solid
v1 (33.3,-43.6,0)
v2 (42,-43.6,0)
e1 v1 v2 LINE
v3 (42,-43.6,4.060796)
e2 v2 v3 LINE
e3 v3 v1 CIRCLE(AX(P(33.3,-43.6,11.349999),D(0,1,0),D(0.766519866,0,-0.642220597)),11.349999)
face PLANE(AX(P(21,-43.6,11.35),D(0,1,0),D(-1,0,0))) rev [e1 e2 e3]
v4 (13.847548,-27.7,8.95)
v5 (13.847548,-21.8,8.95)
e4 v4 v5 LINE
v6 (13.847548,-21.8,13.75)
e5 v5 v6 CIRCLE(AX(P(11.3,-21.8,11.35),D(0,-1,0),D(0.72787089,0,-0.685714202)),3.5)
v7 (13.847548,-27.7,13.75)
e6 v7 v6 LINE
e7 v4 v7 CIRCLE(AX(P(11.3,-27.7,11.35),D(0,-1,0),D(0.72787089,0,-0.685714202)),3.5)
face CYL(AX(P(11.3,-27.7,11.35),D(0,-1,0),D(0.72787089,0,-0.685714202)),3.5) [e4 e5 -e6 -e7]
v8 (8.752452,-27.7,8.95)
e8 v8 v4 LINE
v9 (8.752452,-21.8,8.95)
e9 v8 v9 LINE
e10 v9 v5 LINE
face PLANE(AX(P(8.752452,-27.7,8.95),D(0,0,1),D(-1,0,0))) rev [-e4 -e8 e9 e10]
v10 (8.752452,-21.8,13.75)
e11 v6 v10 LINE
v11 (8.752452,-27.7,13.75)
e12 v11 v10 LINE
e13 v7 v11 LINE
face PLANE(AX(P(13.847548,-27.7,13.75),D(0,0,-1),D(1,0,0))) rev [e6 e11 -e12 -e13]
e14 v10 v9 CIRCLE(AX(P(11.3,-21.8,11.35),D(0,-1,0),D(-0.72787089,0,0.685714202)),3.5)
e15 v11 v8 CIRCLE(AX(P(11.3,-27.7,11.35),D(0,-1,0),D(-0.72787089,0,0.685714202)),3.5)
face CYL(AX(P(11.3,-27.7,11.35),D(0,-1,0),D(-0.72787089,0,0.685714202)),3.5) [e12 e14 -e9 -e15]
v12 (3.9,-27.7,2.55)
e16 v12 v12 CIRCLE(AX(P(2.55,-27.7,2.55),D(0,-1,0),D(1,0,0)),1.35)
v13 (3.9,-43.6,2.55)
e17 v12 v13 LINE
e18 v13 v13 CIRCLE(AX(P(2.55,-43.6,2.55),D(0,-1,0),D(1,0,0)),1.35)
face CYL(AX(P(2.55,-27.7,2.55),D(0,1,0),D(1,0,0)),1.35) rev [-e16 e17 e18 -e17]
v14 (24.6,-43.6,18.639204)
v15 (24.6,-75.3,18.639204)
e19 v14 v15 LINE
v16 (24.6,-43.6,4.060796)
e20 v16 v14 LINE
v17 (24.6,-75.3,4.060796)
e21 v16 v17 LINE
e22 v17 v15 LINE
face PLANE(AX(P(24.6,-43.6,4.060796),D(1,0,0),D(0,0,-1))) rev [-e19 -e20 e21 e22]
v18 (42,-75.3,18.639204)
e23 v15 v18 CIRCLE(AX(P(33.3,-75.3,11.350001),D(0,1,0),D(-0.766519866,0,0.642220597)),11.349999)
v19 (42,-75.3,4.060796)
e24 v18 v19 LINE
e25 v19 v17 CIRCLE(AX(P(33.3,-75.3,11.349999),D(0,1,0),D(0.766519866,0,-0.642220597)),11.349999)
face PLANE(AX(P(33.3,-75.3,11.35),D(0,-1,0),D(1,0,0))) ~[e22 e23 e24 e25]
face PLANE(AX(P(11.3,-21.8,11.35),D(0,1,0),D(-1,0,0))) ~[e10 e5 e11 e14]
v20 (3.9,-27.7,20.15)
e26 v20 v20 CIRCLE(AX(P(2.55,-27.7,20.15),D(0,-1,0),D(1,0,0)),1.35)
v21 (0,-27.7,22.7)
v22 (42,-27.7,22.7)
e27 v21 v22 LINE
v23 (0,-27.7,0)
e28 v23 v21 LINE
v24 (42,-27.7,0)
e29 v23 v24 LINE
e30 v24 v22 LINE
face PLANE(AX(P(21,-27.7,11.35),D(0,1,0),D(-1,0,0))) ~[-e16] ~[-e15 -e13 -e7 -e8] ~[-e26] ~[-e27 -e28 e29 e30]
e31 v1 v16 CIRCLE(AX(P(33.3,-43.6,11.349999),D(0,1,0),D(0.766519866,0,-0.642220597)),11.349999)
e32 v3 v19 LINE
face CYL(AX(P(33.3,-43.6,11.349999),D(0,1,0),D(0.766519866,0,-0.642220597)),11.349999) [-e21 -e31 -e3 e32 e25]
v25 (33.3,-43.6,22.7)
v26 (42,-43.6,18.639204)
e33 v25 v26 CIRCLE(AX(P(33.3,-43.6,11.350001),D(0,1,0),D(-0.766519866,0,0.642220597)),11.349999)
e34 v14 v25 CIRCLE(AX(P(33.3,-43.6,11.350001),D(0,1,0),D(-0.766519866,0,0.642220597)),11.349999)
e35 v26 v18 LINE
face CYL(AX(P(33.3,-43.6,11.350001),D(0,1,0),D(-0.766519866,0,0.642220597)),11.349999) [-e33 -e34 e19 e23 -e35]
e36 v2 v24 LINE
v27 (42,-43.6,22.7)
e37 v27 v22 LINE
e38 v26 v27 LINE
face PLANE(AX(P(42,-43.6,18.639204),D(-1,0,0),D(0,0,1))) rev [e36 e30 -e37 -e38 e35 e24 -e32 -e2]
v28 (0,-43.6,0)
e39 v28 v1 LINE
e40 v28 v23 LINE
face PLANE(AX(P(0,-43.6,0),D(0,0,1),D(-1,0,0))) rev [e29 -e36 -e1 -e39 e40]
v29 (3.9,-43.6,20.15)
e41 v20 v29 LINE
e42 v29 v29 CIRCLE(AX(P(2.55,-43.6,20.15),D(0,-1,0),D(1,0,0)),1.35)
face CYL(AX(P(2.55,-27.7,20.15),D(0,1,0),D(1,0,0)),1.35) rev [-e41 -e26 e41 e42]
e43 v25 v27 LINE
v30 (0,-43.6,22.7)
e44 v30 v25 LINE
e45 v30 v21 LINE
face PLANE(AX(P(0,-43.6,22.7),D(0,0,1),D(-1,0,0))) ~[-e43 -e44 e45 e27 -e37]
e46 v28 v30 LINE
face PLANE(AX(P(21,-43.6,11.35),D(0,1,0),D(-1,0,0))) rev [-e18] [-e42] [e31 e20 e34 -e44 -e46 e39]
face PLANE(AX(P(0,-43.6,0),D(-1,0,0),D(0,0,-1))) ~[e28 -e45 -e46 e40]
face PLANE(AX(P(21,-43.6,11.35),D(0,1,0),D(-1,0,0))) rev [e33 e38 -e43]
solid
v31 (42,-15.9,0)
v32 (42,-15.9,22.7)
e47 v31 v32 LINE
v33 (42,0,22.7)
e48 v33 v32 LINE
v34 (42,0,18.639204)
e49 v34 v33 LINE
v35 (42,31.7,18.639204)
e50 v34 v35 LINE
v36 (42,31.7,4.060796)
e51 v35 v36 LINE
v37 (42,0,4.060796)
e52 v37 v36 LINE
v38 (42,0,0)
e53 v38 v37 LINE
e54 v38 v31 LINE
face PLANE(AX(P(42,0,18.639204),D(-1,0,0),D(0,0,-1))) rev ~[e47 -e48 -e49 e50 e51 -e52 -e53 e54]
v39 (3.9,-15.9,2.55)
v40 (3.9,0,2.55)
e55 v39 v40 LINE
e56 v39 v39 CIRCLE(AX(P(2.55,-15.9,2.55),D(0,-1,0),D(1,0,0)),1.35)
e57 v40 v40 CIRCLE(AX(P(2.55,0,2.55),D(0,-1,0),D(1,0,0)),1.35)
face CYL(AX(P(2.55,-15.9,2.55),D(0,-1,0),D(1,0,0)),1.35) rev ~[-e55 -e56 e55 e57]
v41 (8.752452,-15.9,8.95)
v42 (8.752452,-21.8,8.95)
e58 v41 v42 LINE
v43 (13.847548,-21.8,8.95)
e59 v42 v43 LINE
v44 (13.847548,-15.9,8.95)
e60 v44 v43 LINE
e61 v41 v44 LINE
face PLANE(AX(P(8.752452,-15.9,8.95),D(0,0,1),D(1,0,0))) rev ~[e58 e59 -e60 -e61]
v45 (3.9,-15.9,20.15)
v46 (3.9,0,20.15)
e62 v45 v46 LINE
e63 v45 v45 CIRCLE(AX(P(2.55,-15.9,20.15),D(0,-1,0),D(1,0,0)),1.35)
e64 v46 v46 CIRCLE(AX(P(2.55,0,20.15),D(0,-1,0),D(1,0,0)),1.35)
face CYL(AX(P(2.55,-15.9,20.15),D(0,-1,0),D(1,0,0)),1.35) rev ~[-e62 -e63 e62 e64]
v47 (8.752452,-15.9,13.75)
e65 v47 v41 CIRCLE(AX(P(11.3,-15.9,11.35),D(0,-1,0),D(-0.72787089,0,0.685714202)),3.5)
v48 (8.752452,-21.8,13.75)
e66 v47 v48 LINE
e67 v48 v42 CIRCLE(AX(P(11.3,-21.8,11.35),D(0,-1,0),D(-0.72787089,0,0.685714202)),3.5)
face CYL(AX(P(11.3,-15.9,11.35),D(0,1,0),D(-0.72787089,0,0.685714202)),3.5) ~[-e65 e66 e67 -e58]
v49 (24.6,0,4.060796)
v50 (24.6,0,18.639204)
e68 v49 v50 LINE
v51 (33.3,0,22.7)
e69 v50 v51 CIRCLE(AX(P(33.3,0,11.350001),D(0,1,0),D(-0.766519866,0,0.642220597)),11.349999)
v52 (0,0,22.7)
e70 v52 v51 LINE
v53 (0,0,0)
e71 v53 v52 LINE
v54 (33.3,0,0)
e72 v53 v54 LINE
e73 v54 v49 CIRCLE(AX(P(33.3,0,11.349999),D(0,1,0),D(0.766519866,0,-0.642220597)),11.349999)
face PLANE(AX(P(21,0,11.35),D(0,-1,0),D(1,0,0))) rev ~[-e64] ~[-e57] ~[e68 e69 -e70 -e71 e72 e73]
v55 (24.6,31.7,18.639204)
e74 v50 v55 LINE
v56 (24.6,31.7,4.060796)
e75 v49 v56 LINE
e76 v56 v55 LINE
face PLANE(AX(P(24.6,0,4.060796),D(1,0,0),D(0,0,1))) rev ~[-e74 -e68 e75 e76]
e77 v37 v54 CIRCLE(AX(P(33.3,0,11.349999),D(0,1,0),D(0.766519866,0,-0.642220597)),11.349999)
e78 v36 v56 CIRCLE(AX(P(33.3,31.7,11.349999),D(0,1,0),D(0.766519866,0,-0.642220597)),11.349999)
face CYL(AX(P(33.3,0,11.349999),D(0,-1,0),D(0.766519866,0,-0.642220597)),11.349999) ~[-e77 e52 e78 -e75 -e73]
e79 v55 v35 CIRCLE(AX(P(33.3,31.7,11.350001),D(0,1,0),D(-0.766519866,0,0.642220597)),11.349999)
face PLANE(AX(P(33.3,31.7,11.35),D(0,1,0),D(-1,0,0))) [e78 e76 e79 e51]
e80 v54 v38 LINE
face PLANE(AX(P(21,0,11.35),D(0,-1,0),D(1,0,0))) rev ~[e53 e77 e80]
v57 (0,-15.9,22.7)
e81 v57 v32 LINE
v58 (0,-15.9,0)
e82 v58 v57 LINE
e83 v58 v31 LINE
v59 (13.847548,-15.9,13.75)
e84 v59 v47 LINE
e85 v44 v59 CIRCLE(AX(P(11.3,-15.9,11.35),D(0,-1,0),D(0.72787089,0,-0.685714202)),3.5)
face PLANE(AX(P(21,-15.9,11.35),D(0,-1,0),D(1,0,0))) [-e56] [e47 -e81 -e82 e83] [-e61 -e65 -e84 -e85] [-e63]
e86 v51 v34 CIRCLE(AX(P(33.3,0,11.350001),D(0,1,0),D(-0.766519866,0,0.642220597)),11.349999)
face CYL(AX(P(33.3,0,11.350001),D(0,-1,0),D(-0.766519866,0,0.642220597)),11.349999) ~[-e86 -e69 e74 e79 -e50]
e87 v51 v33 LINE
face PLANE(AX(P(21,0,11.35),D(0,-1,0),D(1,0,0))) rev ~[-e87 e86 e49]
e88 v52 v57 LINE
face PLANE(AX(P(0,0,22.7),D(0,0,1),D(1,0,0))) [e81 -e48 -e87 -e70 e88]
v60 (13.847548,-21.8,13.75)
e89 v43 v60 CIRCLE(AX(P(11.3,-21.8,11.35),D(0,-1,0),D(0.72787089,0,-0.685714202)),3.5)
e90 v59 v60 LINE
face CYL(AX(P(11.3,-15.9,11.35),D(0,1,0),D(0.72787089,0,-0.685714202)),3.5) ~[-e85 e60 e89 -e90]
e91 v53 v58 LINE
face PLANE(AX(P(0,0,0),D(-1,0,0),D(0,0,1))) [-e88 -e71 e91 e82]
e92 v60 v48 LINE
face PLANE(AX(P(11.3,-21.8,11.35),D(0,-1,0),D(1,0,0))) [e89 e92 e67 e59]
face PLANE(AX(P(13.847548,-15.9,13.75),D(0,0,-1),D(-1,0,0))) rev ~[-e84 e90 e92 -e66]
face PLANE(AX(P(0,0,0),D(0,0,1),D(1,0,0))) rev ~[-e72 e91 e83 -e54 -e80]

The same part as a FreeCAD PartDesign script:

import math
import FreeCAD as App
import Part
import Sketcher

V = App.Vector
Q = App.Units.Quantity


def add_polygon(sketch, points):
    """Adds a closed chain of lines whose ends are joined by coincident constraints."""
    first, n = sketch.GeometryCount, len(points)
    for a, b in zip(points, points[1:] + points[:1]):
        sketch.addGeometry(Part.LineSegment(App.Vector(*a, 0), App.Vector(*b, 0)), False)
    for i in range(n):
        sketch.addConstraint(Sketcher.Constraint("Coincident", first + i, 2, first + (i + 1) % n, 1))

doc = App.newDocument("Part")
params = doc.addObject("Spreadsheet::Sheet", "Params")
for row, (alias, value) in enumerate([
    ("sketch1_width", "42 mm"),
    ("sketch1_height", "22.7 mm"),
    ("pad1_length", "15.9 mm"),
    ("sketch2_diameter", "2.7 mm"),
    ("sketch3_radius", "3.5 mm"),
    ("pad2_length", "5.9 mm"),
    ("sketch4_radius", "11.349999 mm"),
    ("pad3_length", "31.7 mm"),
], start=1):
    params.set(f"A{row}", alias)
    params.set(f"B{row}", "=" + value)
    params.setAlias(f"B{row}", alias)

body = doc.addObject("PartDesign::Body", "Body")

# Sketch on XZ plane
sketch1 = body.newObject("Sketcher::SketchObject", "Sketch")
sketch1.AttachmentSupport = (doc.getObject("XZ_Plane"), [""])
sketch1.MapMode = "FlatFace"
add_polygon(sketch1, [(0, 22.7), (0, 0), (42, 0), (42, 22.7)])  # lines 0-3
sketch1.addConstraint([
    Sketcher.Constraint("Vertical", 0),
    Sketcher.Constraint("Horizontal", 1),
    Sketcher.Constraint("Vertical", 2),
    Sketcher.Constraint("Horizontal", 3),
    Sketcher.Constraint("Coincident", 0, 2, -1, 1),
    Sketcher.Constraint("DistanceX", 1, 1, 1, 2, Q("42 mm")),
    Sketcher.Constraint("DistanceY", 0, 2, 0, 1, Q("22.7 mm")),
])
sketch1.setExpression("Constraints[9]", "Params.sketch1_width")
sketch1.setExpression("Constraints[10]", "Params.sketch1_height")
pad1 = body.newObject("PartDesign::Pad", "Pad")
pad1.Profile = sketch1
pad1.setExpression("Length", "Params.pad1_length")

# Sketch on XZ plane
sketch2 = body.newObject("Sketcher::SketchObject", "Sketch001")
sketch2.AttachmentSupport = (doc.getObject("XZ_Plane"), [""])
sketch2.MapMode = "FlatFace"
sketch2.AttachmentOffset = App.Placement(V(0, 0, 15.9), App.Rotation())
sketch2.addGeometry([
    Part.Circle(V(2.55, 20.15, 0), V(0, 0, 1), 1.35),
    Part.Circle(V(2.55, 2.55, 0), V(0, 0, 1), 1.35),
], False)
sketch2.addConstraint([
    Sketcher.Constraint("Equal", 0, 1),
    Sketcher.Constraint("Vertical", 0, 3, 1, 3),
    Sketcher.Constraint("Diameter", 0, Q("2.7 mm")),
    Sketcher.Constraint("DistanceY", 1, 3, 0, 3, Q("17.6 mm")),
    Sketcher.Constraint("DistanceX", -1, 1, 0, 3, Q("2.55 mm")),
    Sketcher.Constraint("DistanceY", -1, 1, 0, 3, Q("20.15 mm")),
])
sketch2.setExpression("Constraints[2]", "Params.sketch2_diameter")
pocket1 = body.newObject("PartDesign::Pocket", "Pocket")
pocket1.Profile = sketch2
pocket1.Type = "ThroughAll"

# Sketch on XZ plane
sketch3 = body.newObject("Sketcher::SketchObject", "Sketch002")
sketch3.AttachmentSupport = (doc.getObject("XZ_Plane"), [""])
sketch3.MapMode = "FlatFace"
sketch3.AttachmentOffset = App.Placement(V(0, 0, 15.9), App.Rotation())
sketch3.addGeometry([
    Part.LineSegment(V(13.847548, 13.75, 0), V(8.752452, 13.75, 0)),
    Part.ArcOfCircle(Part.Circle(V(11.3, 11.35, 0), V(0, 0, 1), 3.5), math.radians(136.708199), math.radians(223.291801)),
    Part.LineSegment(V(8.752452, 8.95, 0), V(13.847548, 8.95, 0)),
    Part.ArcOfCircle(Part.Circle(V(11.3, 11.35, 0), V(0, 0, 1), 3.5), math.radians(-43.291801), math.radians(43.291801)),
], False)
sketch3.addConstraint([
    Sketcher.Constraint("Coincident", 0, 2, 1, 1),
    Sketcher.Constraint("Coincident", 1, 2, 2, 1),
    Sketcher.Constraint("Coincident", 2, 2, 3, 1),
    Sketcher.Constraint("Coincident", 3, 2, 0, 1),
    Sketcher.Constraint("Horizontal", 0),
    Sketcher.Constraint("Horizontal", 2),
    Sketcher.Constraint("Coincident", 3, 3, 1, 3),
    Sketcher.Constraint("Equal", 1, 3),
    Sketcher.Constraint("Vertical", 0, 2, 1, 2),
    Sketcher.Constraint("Radius", 1, Q("3.5 mm")),
    Sketcher.Constraint("DistanceX", -1, 1, 1, 3, Q("11.3 mm")),
    Sketcher.Constraint("DistanceY", 3, 3, 0, 2, Q("2.4 mm")),
    Sketcher.Constraint("DistanceY", -1, 1, 1, 3, Q("11.35 mm")),
])
sketch3.setExpression("Constraints[9]", "Params.sketch3_radius")
pad2 = body.newObject("PartDesign::Pad", "Pad001")
pad2.Profile = sketch3
pad2.setExpression("Length", "Params.pad2_length")

# Sketch on XZ plane
sketch4 = body.newObject("Sketcher::SketchObject", "Sketch003")
sketch4.AttachmentSupport = (doc.getObject("XZ_Plane"), [""])
sketch4.MapMode = "FlatFace"
sketch4.addGeometry([
    Part.LineSegment(V(42, 18.639204, 0), V(42, 4.060796, 0)),
    Part.ArcOfCircle(Part.Circle(V(33.3, 11.349999, 0), V(0, 0, 1), 11.349999), math.radians(-140.042396), math.radians(-39.957604)),
    Part.LineSegment(V(24.6, 4.060796, 0), V(24.6, 18.639204, 0)),
    Part.ArcOfCircle(Part.Circle(V(33.3, 11.350001, 0), V(0, 0, 1), 11.349999), math.radians(39.957604), math.radians(140.042396)),
], False)
sketch4.addConstraint([
    Sketcher.Constraint("Coincident", 0, 2, 1, 2),
    Sketcher.Constraint("Coincident", 1, 1, 2, 1),
    Sketcher.Constraint("Coincident", 2, 2, 3, 2),
    Sketcher.Constraint("Coincident", 3, 1, 0, 1),
    Sketcher.Constraint("Vertical", 0),
    Sketcher.Constraint("Vertical", 2),
    Sketcher.Constraint("Coincident", 3, 3, 1, 3),
    Sketcher.Constraint("Equal", 1, 3),
    Sketcher.Constraint("Horizontal", 0, 2, 1, 1),
    Sketcher.Constraint("Radius", 1, Q("11.349999 mm")),
    Sketcher.Constraint("DistanceX", -1, 1, 0, 2, Q("42 mm")),
    Sketcher.Constraint("DistanceX", -1, 1, 1, 3, Q("33.3 mm")),
    Sketcher.Constraint("DistanceY", -1, 1, 1, 3, Q("11.349999 mm")),
])
sketch4.setExpression("Constraints[9]", "Params.sketch4_radius")
pad3 = body.newObject("PartDesign::Pad", "Pad002")
pad3.Profile = sketch4
pad3.setExpression("Length", "Params.pad3_length")
pad3.Reversed = True
body2 = doc.addObject("PartDesign::Body", "Body001")
doc.recompute()

mirroring = doc.addObject("Part::Mirroring", "Mirroring")
mirroring.Source = body
mirroring.Base = V(11.3, -21.8, 11.35)
mirroring.Normal = V(0, -1, 0)
body2.BaseFeature = mirroring
doc.recompute()
mirroring.Visibility = False

doc.recompute()
